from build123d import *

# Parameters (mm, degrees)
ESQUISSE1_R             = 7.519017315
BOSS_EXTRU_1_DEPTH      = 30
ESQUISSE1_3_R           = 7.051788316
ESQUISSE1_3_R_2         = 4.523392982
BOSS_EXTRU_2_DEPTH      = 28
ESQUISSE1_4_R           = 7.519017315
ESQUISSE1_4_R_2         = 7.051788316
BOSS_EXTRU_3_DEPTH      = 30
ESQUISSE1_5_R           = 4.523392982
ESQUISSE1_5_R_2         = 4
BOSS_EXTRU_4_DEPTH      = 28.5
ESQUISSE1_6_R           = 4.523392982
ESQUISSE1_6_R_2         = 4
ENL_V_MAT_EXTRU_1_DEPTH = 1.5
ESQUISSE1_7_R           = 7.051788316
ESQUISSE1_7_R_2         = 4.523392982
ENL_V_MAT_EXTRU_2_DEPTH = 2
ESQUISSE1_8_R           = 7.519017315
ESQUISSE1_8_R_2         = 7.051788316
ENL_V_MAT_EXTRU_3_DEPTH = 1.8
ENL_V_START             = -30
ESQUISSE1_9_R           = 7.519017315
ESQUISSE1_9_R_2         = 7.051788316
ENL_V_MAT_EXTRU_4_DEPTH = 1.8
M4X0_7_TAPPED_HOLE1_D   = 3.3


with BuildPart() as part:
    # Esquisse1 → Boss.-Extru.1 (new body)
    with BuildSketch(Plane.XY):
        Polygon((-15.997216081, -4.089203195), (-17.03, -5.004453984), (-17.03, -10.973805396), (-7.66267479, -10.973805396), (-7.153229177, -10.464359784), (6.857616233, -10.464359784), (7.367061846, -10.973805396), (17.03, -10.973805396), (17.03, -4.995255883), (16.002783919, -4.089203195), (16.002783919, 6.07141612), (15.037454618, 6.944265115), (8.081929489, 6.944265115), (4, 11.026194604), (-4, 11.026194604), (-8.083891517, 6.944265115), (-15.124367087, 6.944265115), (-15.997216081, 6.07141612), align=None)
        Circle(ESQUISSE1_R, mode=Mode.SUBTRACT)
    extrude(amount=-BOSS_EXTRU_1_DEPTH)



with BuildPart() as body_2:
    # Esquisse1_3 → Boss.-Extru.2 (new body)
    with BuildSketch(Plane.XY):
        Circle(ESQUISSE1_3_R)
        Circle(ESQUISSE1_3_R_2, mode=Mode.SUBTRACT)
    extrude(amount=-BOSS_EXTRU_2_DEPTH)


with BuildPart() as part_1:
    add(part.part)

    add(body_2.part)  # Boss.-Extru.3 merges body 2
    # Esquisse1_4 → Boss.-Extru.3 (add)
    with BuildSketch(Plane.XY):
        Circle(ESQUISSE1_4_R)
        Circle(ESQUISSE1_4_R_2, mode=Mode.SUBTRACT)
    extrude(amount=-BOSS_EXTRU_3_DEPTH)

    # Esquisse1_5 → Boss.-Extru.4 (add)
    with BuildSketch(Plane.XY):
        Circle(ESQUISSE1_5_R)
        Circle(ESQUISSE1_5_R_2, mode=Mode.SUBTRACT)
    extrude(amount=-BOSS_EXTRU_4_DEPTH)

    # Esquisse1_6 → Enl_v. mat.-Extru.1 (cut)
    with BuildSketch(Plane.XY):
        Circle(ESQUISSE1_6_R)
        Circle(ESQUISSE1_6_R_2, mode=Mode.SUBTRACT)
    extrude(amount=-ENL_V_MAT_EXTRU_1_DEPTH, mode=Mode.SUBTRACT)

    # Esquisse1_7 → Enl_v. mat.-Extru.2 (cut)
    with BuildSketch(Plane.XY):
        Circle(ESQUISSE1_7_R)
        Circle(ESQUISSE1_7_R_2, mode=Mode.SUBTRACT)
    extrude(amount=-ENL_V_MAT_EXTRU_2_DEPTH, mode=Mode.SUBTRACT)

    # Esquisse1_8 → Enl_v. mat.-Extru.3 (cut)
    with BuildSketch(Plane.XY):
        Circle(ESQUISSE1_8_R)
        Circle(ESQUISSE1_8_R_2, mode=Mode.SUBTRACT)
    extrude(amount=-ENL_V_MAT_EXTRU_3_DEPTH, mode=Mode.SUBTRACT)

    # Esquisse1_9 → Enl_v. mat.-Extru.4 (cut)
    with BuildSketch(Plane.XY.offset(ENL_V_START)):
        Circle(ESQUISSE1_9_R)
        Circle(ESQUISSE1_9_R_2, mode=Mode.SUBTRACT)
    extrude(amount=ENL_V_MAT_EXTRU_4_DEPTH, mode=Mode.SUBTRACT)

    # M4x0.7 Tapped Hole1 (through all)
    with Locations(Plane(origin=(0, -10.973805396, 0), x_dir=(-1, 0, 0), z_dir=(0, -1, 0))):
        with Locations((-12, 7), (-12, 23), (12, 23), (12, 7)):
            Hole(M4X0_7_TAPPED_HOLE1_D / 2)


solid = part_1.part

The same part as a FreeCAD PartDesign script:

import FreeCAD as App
import Part
import Sketcher

V = App.Vector
Q = App.Units.Quantity

doc = App.newDocument("Part")
body = doc.addObject("PartDesign::Body", "Body")

# Sketch on XY plane
sketch1 = body.newObject("Sketcher::SketchObject", "Sketch")
sketch1.AttachmentSupport = (doc.getObject("XY_Plane"), [""])
sketch1.MapMode = "FlatFace"
sketch1.addGeometry([
    Part.LineSegment(V(-15.997216, -4.089203, 0), V(-17.03, -5.004454, 0)),  # 0
    Part.LineSegment(V(-17.03, -5.004454, 0), V(-17.03, -10.973805, 0)),  # 1
    Part.LineSegment(V(-17.03, -10.973805, 0), V(-7.662675, -10.973805, 0)),  # 2
    Part.LineSegment(V(-7.662675, -10.973805, 0), V(-7.153229, -10.46436, 0)),  # 3
    Part.LineSegment(V(-7.153229, -10.46436, 0), V(6.857616, -10.46436, 0)),  # 4
    Part.LineSegment(V(6.857616, -10.46436, 0), V(7.367062, -10.973805, 0)),  # 5
    Part.LineSegment(V(7.367062, -10.973805, 0), V(17.03, -10.973805, 0)),  # 6
    Part.LineSegment(V(17.03, -10.973805, 0), V(17.03, -4.995256, 0)),  # 7
    Part.LineSegment(V(17.03, -4.995256, 0), V(16.002784, -4.089203, 0)),  # 8
    Part.LineSegment(V(16.002784, -4.089203, 0), V(16.002784, 6.071416, 0)),  # 9
    Part.LineSegment(V(16.002784, 6.071416, 0), V(15.037455, 6.944265, 0)),  # 10
    Part.LineSegment(V(15.037455, 6.944265, 0), V(8.081929, 6.944265, 0)),  # 11
    Part.LineSegment(V(8.081929, 6.944265, 0), V(4, 11.026195, 0)),  # 12
    Part.LineSegment(V(4, 11.026195, 0), V(-4, 11.026195, 0)),  # 13
    Part.LineSegment(V(-4, 11.026195, 0), V(-8.083892, 6.944265, 0)),  # 14
    Part.LineSegment(V(-8.083892, 6.944265, 0), V(-15.124367, 6.944265, 0)),  # 15
    Part.LineSegment(V(-15.124367, 6.944265, 0), V(-15.997216, 6.071416, 0)),  # 16
    Part.LineSegment(V(-15.997216, 6.071416, 0), V(-15.997216, -4.089203, 0)),  # 17
    Part.Circle(V(0, 0, 0), V(0, 0, 1), 7.519017),  # 18
], False)
sketch1.addConstraint([
    Sketcher.Constraint("Coincident", 0, 2, 1, 1),
    Sketcher.Constraint("Coincident", 1, 2, 2, 1),
    Sketcher.Constraint("Coincident", 2, 2, 3, 1),
    Sketcher.Constraint("Coincident", 3, 2, 4, 1),
    Sketcher.Constraint("Coincident", 4, 2, 5, 1),
    Sketcher.Constraint("Coincident", 5, 2, 6, 1),
    Sketcher.Constraint("Coincident", 6, 2, 7, 1),
    Sketcher.Constraint("Coincident", 7, 2, 8, 1),
    Sketcher.Constraint("Coincident", 8, 2, 9, 1),
    Sketcher.Constraint("Coincident", 9, 2, 10, 1),
    Sketcher.Constraint("Coincident", 10, 2, 11, 1),
    Sketcher.Constraint("Coincident", 11, 2, 12, 1),
    Sketcher.Constraint("Coincident", 12, 2, 13, 1),
    Sketcher.Constraint("Coincident", 13, 2, 14, 1),
    Sketcher.Constraint("Coincident", 14, 2, 15, 1),
    Sketcher.Constraint("Coincident", 15, 2, 16, 1),
    Sketcher.Constraint("Coincident", 16, 2, 17, 1),
    Sketcher.Constraint("Coincident", 17, 2, 0, 1),
    Sketcher.Constraint("Vertical", 1),
    Sketcher.Constraint("Horizontal", 2),
    Sketcher.Constraint("Horizontal", 4),
    Sketcher.Constraint("Horizontal", 6),
    Sketcher.Constraint("Vertical", 7),
    Sketcher.Constraint("Vertical", 9),
    Sketcher.Constraint("Horizontal", 11),
    Sketcher.Constraint("Horizontal", 13),
    Sketcher.Constraint("Horizontal", 15),
    Sketcher.Constraint("Vertical", 17),
    Sketcher.Constraint("Coincident", 18, 3, -1, 1),
    Sketcher.Constraint("Symmetric", 1, 2, 6, 2, -2),
    Sketcher.Constraint("Perpendicular", 3, 5),
    Sketcher.Constraint("Parallel", 5, 12),
    Sketcher.Constraint("Perpendicular", 12, 16),
    Sketcher.Constraint("Horizontal", 11, 2, 14, 2),
    Sketcher.Constraint("Horizontal", 9, 2, 16, 2),
    Sketcher.Constraint("Horizontal", 8, 2, 17, 2),
    Sketcher.Constraint("Equal", 3, 5),
    Sketcher.Constraint("DistanceX", 13, 2, 13, 1, Q("8 mm")),
    Sketcher.Constraint("DistanceX", -1, 1, 12, 2, Q("4 mm")),
    Sketcher.Constraint("DistanceX", 0, 2, -1, 1, Q("17.03 mm")),
    Sketcher.Constraint("Diameter", 18, Q("15.038035 mm")),
    Sketcher.Constraint("DistanceX", 6, 1, 6, 2, Q("9.662938 mm")),
    Sketcher.Constraint("DistanceY", 1, 2, 1, 1, Q("5.969351 mm")),
    Sketcher.Constraint("DistanceY", 7, 1, 7, 2, Q("5.97855 mm")),
    Sketcher.Constraint("DistanceY", 9, 1, 9, 2, Q("10.160619 mm")),
    Sketcher.Constraint("Distance", 8, Q("1.36971 mm")),
    Sketcher.Constraint("Distance", 12, Q("5.77272 mm")),
    Sketcher.Constraint("DistanceX", 2, 1, 2, 2, Q("9.367325 mm")),
    Sketcher.Constraint("DistanceX", 4, 1, 4, 2, Q("14.010845 mm")),
    Sketcher.Constraint("DistanceX", 11, 2, 11, 1, Q("6.955525 mm")),
    Sketcher.Constraint("DistanceX", 15, 2, 15, 1, Q("7.040476 mm")),
    Sketcher.Constraint("DistanceY", 3, 2, -1, 1, Q("10.46436 mm")),
    Sketcher.Constraint("DistanceX", 14, 2, -1, 1, Q("8.083892 mm")),
    Sketcher.Constraint("DistanceY", 6, 2, 9, 2, Q("17.045222 mm")),
    Sketcher.Constraint("DistanceY", 9, 2, 10, 2, Q("0.872849 mm")),
])
pad1 = body.newObject("PartDesign::Pad", "Pad")
pad1.Profile = sketch1
pad1.Length = 30
pad1.Reversed = True
body2 = doc.addObject("PartDesign::Body", "Body001")

# Sketch on XY plane
sketch2 = body2.newObject("Sketcher::SketchObject", "Sketch001")
sketch2.AttachmentSupport = (doc.getObject("XY_Plane001"), [""])
sketch2.MapMode = "FlatFace"
sketch2.addGeometry([
    Part.Circle(V(0, 0, 0), V(0, 0, 1), 7.051788),
    Part.Circle(V(0, 0, 0), V(0, 0, 1), 4.523393),
], False)
sketch2.addConstraint([
    Sketcher.Constraint("Coincident", 0, 3, -1, 1),
    Sketcher.Constraint("Coincident", 1, 3, -1, 1),
    Sketcher.Constraint("Diameter", 0, Q("14.103577 mm")),
    Sketcher.Constraint("Diameter", 1, Q("9.046786 mm")),
])
pad2 = body2.newObject("PartDesign::Pad", "Pad001")
pad2.Profile = sketch2
pad2.Length = 28
pad2.Reversed = True
body.AllowCompound = True
doc.recompute()

boolean = body.newObject("PartDesign::Boolean", "Boolean")
boolean.Type = "Fuse"
boolean.addObjects([body2])

# Sketch on XY plane
sketch3 = body.newObject("Sketcher::SketchObject", "Sketch002")
sketch3.AttachmentSupport = (doc.getObject("XY_Plane"), [""])
sketch3.MapMode = "FlatFace"
sketch3.addGeometry([
    Part.Circle(V(0, 0, 0), V(0, 0, 1), 7.519017),
    Part.Circle(V(0, 0, 0), V(0, 0, 1), 7.051788),
], False)
sketch3.addConstraint([
    Sketcher.Constraint("Coincident", 0, 3, -1, 1),
    Sketcher.Constraint("Coincident", 1, 3, -1, 1),
    Sketcher.Constraint("Diameter", 0, Q("15.038035 mm")),
    Sketcher.Constraint("Diameter", 1, Q("14.103577 mm")),
])
pad3 = body.newObject("PartDesign::Pad", "Pad002")
pad3.Profile = sketch3
pad3.Length = 30
pad3.Reversed = True

# Sketch on XY plane
sketch4 = body.newObject("Sketcher::SketchObject", "Sketch003")
sketch4.AttachmentSupport = (doc.getObject("XY_Plane"), [""])
sketch4.MapMode = "FlatFace"
sketch4.addGeometry([
    Part.Circle(V(0, 0, 0), V(0, 0, 1), 4.523393),
    Part.Circle(V(0, 0, 0), V(0, 0, 1), 4),
], False)
sketch4.addConstraint([
    Sketcher.Constraint("Coincident", 0, 3, -1, 1),
    Sketcher.Constraint("Coincident", 1, 3, -1, 1),
    Sketcher.Constraint("Diameter", 1, Q("8 mm")),
    Sketcher.Constraint("Diameter", 0, Q("9.046786 mm")),
])
pad4 = body.newObject("PartDesign::Pad", "Pad003")
pad4.Profile = sketch4
pad4.Length = 28.5
pad4.Reversed = True

# Sketch on XY plane
sketch5 = body.newObject("Sketcher::SketchObject", "Sketch004")
sketch5.AttachmentSupport = (doc.getObject("XY_Plane"), [""])
sketch5.MapMode = "FlatFace"
sketch5.addGeometry([
    Part.Circle(V(0, 0, 0), V(0, 0, 1), 4.523393),
    Part.Circle(V(0, 0, 0), V(0, 0, 1), 4),
], False)
sketch5.addConstraint([
    Sketcher.Constraint("Coincident", 0, 3, -1, 1),
    Sketcher.Constraint("Coincident", 1, 3, -1, 1),
    Sketcher.Constraint("Diameter", 1, Q("8 mm")),
    Sketcher.Constraint("Diameter", 0, Q("9.046786 mm")),
])
pocket1 = body.newObject("PartDesign::Pocket", "Pocket")
pocket1.Profile = sketch5
pocket1.Length = 1.5

# Sketch on XY plane
sketch6 = body.newObject("Sketcher::SketchObject", "Sketch005")
sketch6.AttachmentSupport = (doc.getObject("XY_Plane"), [""])
sketch6.MapMode = "FlatFace"
sketch6.addGeometry([
    Part.Circle(V(0, 0, 0), V(0, 0, 1), 7.051788),
    Part.Circle(V(0, 0, 0), V(0, 0, 1), 4.523393),
], False)
sketch6.addConstraint([
    Sketcher.Constraint("Coincident", 0, 3, -1, 1),
    Sketcher.Constraint("Coincident", 1, 3, -1, 1),
    Sketcher.Constraint("Diameter", 0, Q("14.103577 mm")),
    Sketcher.Constraint("Diameter", 1, Q("9.046786 mm")),
])
pocket2 = body.newObject("PartDesign::Pocket", "Pocket001")
pocket2.Profile = sketch6
pocket2.Length = 2

# Sketch on XY plane
sketch7 = body.newObject("Sketcher::SketchObject", "Sketch006")
sketch7.AttachmentSupport = (doc.getObject("XY_Plane"), [""])
sketch7.MapMode = "FlatFace"
sketch7.addGeometry([
    Part.Circle(V(0, 0, 0), V(0, 0, 1), 7.519017),
    Part.Circle(V(0, 0, 0), V(0, 0, 1), 7.051788),
], False)
sketch7.addConstraint([
    Sketcher.Constraint("Coincident", 0, 3, -1, 1),
    Sketcher.Constraint("Coincident", 1, 3, -1, 1),
    Sketcher.Constraint("Diameter", 0, Q("15.038035 mm")),
    Sketcher.Constraint("Diameter", 1, Q("14.103577 mm")),
])
pocket3 = body.newObject("PartDesign::Pocket", "Pocket002")
pocket3.Profile = sketch7
pocket3.Length = 1.8

# Sketch on XY plane
sketch8 = body.newObject("Sketcher::SketchObject", "Sketch007")
sketch8.AttachmentSupport = (doc.getObject("XY_Plane"), [""])
sketch8.MapMode = "FlatFace"
sketch8.AttachmentOffset = App.Placement(V(0, 0, -30), App.Rotation())
sketch8.addGeometry([
    Part.Circle(V(0, 0, 0), V(0, 0, 1), 7.519017),
    Part.Circle(V(0, 0, 0), V(0, 0, 1), 7.051788),
], False)
sketch8.addConstraint([
    Sketcher.Constraint("Coincident", 0, 3, -1, 1),
    Sketcher.Constraint("Coincident", 1, 3, -1, 1),
    Sketcher.Constraint("Diameter", 0, Q("15.038035 mm")),
    Sketcher.Constraint("Diameter", 1, Q("14.103577 mm")),
])
pocket4 = body.newObject("PartDesign::Pocket", "Pocket003")
pocket4.Profile = sketch8
pocket4.Length = 1.8
pocket4.Reversed = True

# Sketch on XZ plane
sketch9 = body.newObject("Sketcher::SketchObject", "Sketch008")
sketch9.AttachmentSupport = (doc.getObject("XZ_Plane"), [""])
sketch9.MapMode = "FlatFace"
sketch9.AttachmentOffset = App.Placement(V(0, 0, 10.973805), App.Rotation())
sketch9.addGeometry([
    Part.Circle(V(12, -7, 0), V(0, 0, 1), 1.65),
    Part.Circle(V(12, -23, 0), V(0, 0, 1), 1.65),
    Part.Circle(V(-12, -23, 0), V(0, 0, 1), 1.65),
    Part.Circle(V(-12, -7, 0), V(0, 0, 1), 1.65),
], False)
sketch9.addConstraint([
    Sketcher.Constraint("Equal", 0, 1),
    Sketcher.Constraint("Equal", 1, 2),
    Sketcher.Constraint("Equal", 2, 3),
    Sketcher.Constraint("Symmetric", 1, 3, 2, 3, -2),
    Sketcher.Constraint("Symmetric", 0, 3, 3, 3, -2),
    Sketcher.Constraint("Vertical", 0, 3, 1, 3),
    Sketcher.Constraint("Diameter", 0, Q("3.3 mm")),
    Sketcher.Constraint("DistanceX", -1, 1, 0, 3, Q("12 mm")),
    Sketcher.Constraint("DistanceY", 0, 3, -1, 1, Q("7 mm")),
    Sketcher.Constraint("DistanceY", 1, 3, -1, 1, Q("23 mm")),
])
doc.recompute()
hole = body.newObject("PartDesign::Hole", "Hole")
hole.Profile = sketch9
hole.ThreadType = "None"
hole.Diameter = 3.3
hole.DepthType = "ThroughAll"

doc.recompute()
